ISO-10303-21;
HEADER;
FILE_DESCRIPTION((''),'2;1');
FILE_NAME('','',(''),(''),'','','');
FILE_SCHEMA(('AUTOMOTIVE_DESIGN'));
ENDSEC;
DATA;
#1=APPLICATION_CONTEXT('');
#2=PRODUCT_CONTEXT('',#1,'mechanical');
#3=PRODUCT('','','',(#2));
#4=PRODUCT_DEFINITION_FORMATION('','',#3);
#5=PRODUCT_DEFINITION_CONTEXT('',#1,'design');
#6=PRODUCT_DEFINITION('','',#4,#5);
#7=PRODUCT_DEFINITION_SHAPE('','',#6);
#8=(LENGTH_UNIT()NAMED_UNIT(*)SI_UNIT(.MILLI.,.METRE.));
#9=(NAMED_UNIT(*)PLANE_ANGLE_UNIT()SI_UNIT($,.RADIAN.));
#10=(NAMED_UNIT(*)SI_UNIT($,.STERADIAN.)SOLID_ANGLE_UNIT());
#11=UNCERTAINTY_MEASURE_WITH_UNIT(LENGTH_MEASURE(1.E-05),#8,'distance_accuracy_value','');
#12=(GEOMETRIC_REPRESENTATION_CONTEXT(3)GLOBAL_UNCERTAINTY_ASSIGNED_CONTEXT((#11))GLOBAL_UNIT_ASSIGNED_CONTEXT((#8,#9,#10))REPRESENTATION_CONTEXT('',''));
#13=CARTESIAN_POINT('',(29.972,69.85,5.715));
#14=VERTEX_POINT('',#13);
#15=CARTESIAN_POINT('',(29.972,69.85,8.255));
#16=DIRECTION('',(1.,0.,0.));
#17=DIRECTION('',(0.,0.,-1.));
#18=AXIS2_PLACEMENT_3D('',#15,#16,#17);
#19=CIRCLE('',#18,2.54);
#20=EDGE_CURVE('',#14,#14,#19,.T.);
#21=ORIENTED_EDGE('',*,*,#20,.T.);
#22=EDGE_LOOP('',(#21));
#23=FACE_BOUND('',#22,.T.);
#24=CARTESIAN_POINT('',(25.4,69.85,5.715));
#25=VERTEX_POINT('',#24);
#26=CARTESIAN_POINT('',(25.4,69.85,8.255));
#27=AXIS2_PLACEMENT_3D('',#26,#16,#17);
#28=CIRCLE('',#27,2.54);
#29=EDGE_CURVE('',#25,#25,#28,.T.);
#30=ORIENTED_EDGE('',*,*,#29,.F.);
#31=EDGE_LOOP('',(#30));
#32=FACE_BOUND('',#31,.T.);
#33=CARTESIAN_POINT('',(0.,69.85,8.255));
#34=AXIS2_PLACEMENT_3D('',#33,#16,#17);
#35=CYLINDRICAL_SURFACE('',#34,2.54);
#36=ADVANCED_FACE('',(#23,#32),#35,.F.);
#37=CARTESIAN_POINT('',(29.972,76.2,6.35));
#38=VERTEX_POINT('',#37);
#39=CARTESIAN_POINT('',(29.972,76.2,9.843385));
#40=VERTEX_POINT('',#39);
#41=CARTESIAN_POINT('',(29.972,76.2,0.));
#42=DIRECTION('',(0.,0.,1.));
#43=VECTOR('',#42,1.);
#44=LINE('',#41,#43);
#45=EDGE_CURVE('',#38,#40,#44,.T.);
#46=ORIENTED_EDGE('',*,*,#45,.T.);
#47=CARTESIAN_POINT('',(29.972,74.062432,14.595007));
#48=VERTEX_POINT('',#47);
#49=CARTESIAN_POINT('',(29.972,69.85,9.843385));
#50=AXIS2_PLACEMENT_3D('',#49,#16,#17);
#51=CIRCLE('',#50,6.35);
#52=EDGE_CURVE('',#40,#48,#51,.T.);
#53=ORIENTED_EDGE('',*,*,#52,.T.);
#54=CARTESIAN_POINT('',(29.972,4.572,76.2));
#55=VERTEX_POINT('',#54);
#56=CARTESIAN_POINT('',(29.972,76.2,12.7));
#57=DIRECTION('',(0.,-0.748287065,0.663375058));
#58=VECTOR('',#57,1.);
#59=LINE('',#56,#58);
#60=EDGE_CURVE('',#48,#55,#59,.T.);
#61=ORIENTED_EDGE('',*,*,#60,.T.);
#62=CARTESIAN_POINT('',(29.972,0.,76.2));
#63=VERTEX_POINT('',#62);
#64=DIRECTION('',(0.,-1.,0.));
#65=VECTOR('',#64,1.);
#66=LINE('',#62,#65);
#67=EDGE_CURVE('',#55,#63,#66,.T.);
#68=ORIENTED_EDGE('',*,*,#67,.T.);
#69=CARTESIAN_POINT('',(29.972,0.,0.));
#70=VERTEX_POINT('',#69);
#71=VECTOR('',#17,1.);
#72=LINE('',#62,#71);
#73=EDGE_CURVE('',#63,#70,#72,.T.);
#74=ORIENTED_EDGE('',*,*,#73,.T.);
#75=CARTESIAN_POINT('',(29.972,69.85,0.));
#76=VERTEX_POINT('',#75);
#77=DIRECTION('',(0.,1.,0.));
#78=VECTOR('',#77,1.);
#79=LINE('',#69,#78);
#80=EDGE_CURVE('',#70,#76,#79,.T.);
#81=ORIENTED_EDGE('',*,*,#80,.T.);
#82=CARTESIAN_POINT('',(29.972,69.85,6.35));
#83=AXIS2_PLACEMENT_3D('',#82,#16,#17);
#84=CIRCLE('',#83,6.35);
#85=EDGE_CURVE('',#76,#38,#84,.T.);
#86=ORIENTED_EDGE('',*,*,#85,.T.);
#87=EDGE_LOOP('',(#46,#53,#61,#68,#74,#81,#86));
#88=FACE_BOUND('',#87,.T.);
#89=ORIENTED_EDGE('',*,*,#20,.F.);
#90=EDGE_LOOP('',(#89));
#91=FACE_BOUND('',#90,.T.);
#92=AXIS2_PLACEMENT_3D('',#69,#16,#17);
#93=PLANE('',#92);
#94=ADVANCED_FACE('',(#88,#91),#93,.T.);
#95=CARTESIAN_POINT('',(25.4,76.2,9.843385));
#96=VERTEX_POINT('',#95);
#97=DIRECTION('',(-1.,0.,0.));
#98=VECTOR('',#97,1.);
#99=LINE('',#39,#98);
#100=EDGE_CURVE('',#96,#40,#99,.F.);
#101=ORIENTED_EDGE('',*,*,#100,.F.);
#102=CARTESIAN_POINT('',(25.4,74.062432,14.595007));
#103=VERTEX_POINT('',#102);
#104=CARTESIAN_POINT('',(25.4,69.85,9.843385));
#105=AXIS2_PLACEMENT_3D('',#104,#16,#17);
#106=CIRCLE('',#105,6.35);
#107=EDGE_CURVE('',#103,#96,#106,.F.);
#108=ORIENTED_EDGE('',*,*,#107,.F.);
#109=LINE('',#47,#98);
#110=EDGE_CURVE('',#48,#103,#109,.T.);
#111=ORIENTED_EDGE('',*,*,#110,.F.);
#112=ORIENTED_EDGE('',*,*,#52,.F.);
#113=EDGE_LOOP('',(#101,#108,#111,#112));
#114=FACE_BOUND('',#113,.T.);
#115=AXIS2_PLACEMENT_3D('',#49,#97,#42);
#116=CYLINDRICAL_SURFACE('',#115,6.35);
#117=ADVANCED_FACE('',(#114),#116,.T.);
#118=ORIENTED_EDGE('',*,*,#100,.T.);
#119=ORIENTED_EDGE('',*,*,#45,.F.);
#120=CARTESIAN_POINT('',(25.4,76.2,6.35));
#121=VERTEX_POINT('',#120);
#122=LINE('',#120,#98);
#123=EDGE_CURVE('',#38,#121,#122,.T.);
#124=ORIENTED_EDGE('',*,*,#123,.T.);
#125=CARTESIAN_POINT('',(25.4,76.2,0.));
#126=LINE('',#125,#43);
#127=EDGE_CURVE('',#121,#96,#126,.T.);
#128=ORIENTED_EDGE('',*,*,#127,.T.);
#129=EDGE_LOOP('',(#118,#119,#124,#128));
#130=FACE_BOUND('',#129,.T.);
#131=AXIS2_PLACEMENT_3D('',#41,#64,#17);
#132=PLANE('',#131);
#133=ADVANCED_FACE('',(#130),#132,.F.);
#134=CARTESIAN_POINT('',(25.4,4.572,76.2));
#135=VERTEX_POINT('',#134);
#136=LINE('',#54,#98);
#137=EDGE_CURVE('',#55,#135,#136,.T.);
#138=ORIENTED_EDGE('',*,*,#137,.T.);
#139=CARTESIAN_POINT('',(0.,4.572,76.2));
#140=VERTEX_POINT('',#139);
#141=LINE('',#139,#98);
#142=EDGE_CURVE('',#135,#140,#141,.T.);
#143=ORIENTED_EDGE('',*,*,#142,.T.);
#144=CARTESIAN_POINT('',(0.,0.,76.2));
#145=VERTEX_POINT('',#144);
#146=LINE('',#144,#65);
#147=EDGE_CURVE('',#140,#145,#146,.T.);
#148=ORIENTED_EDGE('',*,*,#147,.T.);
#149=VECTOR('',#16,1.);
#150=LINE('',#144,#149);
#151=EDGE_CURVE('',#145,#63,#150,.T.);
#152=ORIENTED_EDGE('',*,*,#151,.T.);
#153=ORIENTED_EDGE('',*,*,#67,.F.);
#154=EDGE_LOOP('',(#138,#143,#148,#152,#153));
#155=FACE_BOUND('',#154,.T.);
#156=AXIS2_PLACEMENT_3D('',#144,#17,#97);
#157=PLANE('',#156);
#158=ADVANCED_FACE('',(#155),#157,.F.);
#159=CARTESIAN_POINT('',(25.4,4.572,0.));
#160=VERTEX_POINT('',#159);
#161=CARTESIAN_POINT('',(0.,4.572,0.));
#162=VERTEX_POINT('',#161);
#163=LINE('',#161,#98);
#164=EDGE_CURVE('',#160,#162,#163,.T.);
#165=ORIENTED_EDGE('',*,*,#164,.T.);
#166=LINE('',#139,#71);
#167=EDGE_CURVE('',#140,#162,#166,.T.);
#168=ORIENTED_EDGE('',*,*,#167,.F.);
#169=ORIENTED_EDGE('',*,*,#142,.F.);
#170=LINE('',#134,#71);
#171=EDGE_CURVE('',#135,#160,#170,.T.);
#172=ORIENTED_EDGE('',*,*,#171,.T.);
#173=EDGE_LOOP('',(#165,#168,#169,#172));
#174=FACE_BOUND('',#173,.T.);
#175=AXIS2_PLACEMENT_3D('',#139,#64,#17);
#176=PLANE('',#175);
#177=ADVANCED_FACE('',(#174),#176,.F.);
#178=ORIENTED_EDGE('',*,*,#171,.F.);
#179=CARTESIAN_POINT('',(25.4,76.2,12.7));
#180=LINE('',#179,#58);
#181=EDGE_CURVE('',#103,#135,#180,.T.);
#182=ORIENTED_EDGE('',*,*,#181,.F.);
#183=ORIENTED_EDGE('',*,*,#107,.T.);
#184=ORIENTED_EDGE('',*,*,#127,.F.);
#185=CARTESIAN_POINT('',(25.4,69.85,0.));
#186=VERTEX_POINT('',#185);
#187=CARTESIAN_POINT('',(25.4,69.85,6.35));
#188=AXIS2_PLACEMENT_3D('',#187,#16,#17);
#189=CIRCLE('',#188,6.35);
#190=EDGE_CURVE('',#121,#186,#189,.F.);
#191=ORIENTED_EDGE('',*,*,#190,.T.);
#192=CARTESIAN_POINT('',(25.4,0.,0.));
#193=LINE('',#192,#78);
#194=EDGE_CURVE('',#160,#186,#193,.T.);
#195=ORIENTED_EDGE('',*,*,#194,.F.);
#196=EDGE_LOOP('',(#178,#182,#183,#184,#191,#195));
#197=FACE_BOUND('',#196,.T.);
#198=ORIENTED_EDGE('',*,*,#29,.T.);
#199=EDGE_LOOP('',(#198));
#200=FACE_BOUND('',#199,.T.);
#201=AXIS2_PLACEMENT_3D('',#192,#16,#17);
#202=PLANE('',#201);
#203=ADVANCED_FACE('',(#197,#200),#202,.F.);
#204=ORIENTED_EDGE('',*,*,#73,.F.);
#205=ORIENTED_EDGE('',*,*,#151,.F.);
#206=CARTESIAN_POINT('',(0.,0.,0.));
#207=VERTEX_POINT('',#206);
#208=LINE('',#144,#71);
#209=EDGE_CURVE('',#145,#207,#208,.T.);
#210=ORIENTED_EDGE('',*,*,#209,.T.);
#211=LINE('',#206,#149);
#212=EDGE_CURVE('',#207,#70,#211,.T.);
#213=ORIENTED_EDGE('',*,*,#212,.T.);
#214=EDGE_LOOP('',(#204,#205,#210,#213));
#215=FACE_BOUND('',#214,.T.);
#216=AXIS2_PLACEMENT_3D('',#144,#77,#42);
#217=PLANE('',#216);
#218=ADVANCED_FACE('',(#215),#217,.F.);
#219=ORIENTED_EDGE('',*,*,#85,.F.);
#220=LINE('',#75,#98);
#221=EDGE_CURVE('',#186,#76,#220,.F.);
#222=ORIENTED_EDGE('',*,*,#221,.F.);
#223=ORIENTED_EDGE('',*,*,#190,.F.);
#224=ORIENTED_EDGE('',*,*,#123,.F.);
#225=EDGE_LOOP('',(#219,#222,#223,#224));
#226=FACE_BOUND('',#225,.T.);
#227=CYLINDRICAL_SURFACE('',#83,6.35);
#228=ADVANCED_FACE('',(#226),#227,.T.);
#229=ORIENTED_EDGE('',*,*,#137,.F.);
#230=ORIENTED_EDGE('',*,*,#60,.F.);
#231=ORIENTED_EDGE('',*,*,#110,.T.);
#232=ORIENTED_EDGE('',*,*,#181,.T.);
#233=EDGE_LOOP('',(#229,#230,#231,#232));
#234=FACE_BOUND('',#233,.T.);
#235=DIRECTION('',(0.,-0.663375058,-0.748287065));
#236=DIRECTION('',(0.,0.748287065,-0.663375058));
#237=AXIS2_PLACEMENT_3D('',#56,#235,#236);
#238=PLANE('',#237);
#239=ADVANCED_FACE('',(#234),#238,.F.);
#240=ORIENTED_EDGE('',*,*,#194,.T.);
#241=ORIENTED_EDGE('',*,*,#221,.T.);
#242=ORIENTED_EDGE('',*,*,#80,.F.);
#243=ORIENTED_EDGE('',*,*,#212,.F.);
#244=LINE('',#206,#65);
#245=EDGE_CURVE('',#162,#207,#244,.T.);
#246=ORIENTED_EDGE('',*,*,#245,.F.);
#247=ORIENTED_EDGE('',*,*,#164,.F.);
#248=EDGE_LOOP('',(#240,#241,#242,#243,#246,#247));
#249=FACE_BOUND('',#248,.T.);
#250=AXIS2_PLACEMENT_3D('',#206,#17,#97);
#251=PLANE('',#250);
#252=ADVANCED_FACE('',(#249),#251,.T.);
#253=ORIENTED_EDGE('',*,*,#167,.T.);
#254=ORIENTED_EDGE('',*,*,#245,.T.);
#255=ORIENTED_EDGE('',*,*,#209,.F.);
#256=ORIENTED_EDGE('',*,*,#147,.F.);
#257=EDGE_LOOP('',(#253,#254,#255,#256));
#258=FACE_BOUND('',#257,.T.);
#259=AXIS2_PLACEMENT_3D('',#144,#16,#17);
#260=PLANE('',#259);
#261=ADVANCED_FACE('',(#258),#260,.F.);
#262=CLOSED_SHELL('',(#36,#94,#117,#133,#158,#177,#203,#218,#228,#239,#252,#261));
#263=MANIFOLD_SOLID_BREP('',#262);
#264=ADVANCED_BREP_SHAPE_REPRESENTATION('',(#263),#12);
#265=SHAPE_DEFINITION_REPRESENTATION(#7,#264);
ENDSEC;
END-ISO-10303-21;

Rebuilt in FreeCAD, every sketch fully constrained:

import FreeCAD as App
import Part
import Sketcher
Q = App.Units.Quantity


def edges_at(feature, points):
    """Names of the edges that pass closest to the given points."""
    edges = feature.Shape.Edges
    near = lambda p: min(range(len(edges)), key=lambda i: edges[i].distToShape(Part.Vertex(*p))[0])
    return sorted({f"Edge{near(p) + 1}" for p in points})

doc = App.newDocument("Part")
params = doc.addObject("Spreadsheet::Sheet", "Params")
for row, (alias, value) in enumerate([
    ("sketch1_width", "1 in"),
    ("sketch1_height", "0.18 in"),
    ("pad1_length", "3 in"),
    ("sketch2_width", "3 in"),
    ("sketch2_height", "0.5 in"),
    ("sketch2_width2", "0.18 in"),
    ("pad2_length", "0.18 in"),
    ("fillet_radius", "0.25 in"),
    ("sketch3_diameter", "0.2 in"),
], start=1):
    params.set(f"A{row}", alias)
    params.set(f"B{row}", "=" + value)
    params.setAlias(f"B{row}", alias)

body = doc.addObject("PartDesign::Body", "Body")

# Sketch on XY plane
sketch1 = body.newObject("Sketcher::SketchObject", "Sketch")
sketch1.AttachmentSupport = (doc.getObject("XY_Plane"), [""])
sketch1.MapMode = "FlatFace"
sketch1.addGeometry([
    Part.LineSegment(App.Vector(0, 4.572, 0), App.Vector(0, 0, 0)),
    Part.LineSegment(App.Vector(0, 0, 0), App.Vector(25.4, 0, 0)),
    Part.LineSegment(App.Vector(25.4, 0, 0), App.Vector(25.4, 4.572, 0)),
    Part.LineSegment(App.Vector(25.4, 4.572, 0), App.Vector(0, 4.572, 0)),
], False)
sketch1.addConstraint([
    Sketcher.Constraint("Coincident", 0, 2, 1, 1),
    Sketcher.Constraint("Coincident", 1, 2, 2, 1),
    Sketcher.Constraint("Coincident", 2, 2, 3, 1),
    Sketcher.Constraint("Coincident", 3, 2, 0, 1),
    Sketcher.Constraint("Vertical", 0),
    Sketcher.Constraint("Horizontal", 1),
    Sketcher.Constraint("Vertical", 2),
    Sketcher.Constraint("Horizontal", 3),
    Sketcher.Constraint("Coincident", 0, 2, -1, 1),
    Sketcher.Constraint("DistanceX", 1, 1, 1, 2, Q("1 in")),
    Sketcher.Constraint("DistanceY", 0, 2, 0, 1, Q("0.18 in")),
])
sketch1.setExpression("Constraints[9]", "Params.sketch1_width")
sketch1.setExpression("Constraints[10]", "Params.sketch1_height")
pad1 = body.newObject("PartDesign::Pad", "Pad")
pad1.Profile = sketch1
pad1.setExpression("Length", "Params.pad1_length")

# Sketch on YZ plane
sketch2 = body.newObject("Sketcher::SketchObject", "Sketch001")
sketch2.AttachmentSupport = (doc.getObject("YZ_Plane"), [""])
sketch2.MapMode = "FlatFace"
sketch2.AttachmentOffset = App.Placement(App.Vector(0, 0, 1 * 25.4), App.Rotation())
sketch2.addGeometry([
    Part.LineSegment(App.Vector(4.572, 76.2, 0), App.Vector(0, 76.2, 0)),  # 0
    Part.LineSegment(App.Vector(0, 76.2, 0), App.Vector(0, 0, 0)),  # 1
    Part.LineSegment(App.Vector(0, 0, 0), App.Vector(76.2, 0, 0)),  # 2
    Part.LineSegment(App.Vector(76.2, 0, 0), App.Vector(76.2, 12.7, 0)),  # 3
    Part.LineSegment(App.Vector(76.2, 12.7, 0), App.Vector(4.572, 76.2, 0)),  # 4
], False)
sketch2.addConstraint([
    Sketcher.Constraint("Coincident", 0, 2, 1, 1),
    Sketcher.Constraint("Coincident", 1, 2, 2, 1),
    Sketcher.Constraint("Coincident", 2, 2, 3, 1),
    Sketcher.Constraint("Coincident", 3, 2, 4, 1),
    Sketcher.Constraint("Coincident", 4, 2, 0, 1),
    Sketcher.Constraint("Horizontal", 0),
    Sketcher.Constraint("Vertical", 1),
    Sketcher.Constraint("Horizontal", 2),
    Sketcher.Constraint("Vertical", 3),
    Sketcher.Constraint("Coincident", 1, 2, -1, 1),
    Sketcher.Constraint("Equal", 2, 1),
    Sketcher.Constraint("DistanceX", 2, 1, 2, 2, Q("3 in")),
    Sketcher.Constraint("DistanceY", 3, 1, 3, 2, Q("0.5 in")),
    Sketcher.Constraint("DistanceX", 0, 2, 0, 1, Q("0.18 in")),
])
sketch2.setExpression("Constraints[11]", "Params.sketch2_width")
sketch2.setExpression("Constraints[12]", "Params.sketch2_height")
sketch2.setExpression("Constraints[13]", "Params.sketch2_width2")
pad2 = body.newObject("PartDesign::Pad", "Pad001")
pad2.Profile = sketch2
pad2.setExpression("Length", "Params.pad2_length")
doc.recompute()

fillet = body.newObject("PartDesign::Fillet", "Fillet")
fillet.Base = (pad2, edges_at(pad2, [(27.686, 76.2, 0), (27.686, 76.2, 12.7)]))
fillet.setExpression("Radius", "Params.fillet_radius")

# Sketch on YZ plane
sketch3 = body.newObject("Sketcher::SketchObject", "Sketch002")
sketch3.AttachmentSupport = (doc.getObject("YZ_Plane"), [""])
sketch3.MapMode = "FlatFace"
sketch3.AttachmentOffset = App.Placement(App.Vector(0, 0, 1.18 * 25.4), App.Rotation())
sketch3.addGeometry(Part.Circle(App.Vector(69.85, 8.255, 0), App.Vector(0, 0, 1), 2.54), False)
sketch3.addConstraint([
    Sketcher.Constraint("Diameter", 0, Q("0.2 in")),
    Sketcher.Constraint("DistanceX", -1, 1, 0, 3, Q("2.75 in")),
    Sketcher.Constraint("DistanceY", -1, 1, 0, 3, Q("0.325 in")),
])
sketch3.setExpression("Constraints[0]", "Params.sketch3_diameter")
pocket1 = body.newObject("PartDesign::Pocket", "Pocket")
pocket1.Profile = sketch3
pocket1.Type = "ThroughAll"

doc.recompute()
